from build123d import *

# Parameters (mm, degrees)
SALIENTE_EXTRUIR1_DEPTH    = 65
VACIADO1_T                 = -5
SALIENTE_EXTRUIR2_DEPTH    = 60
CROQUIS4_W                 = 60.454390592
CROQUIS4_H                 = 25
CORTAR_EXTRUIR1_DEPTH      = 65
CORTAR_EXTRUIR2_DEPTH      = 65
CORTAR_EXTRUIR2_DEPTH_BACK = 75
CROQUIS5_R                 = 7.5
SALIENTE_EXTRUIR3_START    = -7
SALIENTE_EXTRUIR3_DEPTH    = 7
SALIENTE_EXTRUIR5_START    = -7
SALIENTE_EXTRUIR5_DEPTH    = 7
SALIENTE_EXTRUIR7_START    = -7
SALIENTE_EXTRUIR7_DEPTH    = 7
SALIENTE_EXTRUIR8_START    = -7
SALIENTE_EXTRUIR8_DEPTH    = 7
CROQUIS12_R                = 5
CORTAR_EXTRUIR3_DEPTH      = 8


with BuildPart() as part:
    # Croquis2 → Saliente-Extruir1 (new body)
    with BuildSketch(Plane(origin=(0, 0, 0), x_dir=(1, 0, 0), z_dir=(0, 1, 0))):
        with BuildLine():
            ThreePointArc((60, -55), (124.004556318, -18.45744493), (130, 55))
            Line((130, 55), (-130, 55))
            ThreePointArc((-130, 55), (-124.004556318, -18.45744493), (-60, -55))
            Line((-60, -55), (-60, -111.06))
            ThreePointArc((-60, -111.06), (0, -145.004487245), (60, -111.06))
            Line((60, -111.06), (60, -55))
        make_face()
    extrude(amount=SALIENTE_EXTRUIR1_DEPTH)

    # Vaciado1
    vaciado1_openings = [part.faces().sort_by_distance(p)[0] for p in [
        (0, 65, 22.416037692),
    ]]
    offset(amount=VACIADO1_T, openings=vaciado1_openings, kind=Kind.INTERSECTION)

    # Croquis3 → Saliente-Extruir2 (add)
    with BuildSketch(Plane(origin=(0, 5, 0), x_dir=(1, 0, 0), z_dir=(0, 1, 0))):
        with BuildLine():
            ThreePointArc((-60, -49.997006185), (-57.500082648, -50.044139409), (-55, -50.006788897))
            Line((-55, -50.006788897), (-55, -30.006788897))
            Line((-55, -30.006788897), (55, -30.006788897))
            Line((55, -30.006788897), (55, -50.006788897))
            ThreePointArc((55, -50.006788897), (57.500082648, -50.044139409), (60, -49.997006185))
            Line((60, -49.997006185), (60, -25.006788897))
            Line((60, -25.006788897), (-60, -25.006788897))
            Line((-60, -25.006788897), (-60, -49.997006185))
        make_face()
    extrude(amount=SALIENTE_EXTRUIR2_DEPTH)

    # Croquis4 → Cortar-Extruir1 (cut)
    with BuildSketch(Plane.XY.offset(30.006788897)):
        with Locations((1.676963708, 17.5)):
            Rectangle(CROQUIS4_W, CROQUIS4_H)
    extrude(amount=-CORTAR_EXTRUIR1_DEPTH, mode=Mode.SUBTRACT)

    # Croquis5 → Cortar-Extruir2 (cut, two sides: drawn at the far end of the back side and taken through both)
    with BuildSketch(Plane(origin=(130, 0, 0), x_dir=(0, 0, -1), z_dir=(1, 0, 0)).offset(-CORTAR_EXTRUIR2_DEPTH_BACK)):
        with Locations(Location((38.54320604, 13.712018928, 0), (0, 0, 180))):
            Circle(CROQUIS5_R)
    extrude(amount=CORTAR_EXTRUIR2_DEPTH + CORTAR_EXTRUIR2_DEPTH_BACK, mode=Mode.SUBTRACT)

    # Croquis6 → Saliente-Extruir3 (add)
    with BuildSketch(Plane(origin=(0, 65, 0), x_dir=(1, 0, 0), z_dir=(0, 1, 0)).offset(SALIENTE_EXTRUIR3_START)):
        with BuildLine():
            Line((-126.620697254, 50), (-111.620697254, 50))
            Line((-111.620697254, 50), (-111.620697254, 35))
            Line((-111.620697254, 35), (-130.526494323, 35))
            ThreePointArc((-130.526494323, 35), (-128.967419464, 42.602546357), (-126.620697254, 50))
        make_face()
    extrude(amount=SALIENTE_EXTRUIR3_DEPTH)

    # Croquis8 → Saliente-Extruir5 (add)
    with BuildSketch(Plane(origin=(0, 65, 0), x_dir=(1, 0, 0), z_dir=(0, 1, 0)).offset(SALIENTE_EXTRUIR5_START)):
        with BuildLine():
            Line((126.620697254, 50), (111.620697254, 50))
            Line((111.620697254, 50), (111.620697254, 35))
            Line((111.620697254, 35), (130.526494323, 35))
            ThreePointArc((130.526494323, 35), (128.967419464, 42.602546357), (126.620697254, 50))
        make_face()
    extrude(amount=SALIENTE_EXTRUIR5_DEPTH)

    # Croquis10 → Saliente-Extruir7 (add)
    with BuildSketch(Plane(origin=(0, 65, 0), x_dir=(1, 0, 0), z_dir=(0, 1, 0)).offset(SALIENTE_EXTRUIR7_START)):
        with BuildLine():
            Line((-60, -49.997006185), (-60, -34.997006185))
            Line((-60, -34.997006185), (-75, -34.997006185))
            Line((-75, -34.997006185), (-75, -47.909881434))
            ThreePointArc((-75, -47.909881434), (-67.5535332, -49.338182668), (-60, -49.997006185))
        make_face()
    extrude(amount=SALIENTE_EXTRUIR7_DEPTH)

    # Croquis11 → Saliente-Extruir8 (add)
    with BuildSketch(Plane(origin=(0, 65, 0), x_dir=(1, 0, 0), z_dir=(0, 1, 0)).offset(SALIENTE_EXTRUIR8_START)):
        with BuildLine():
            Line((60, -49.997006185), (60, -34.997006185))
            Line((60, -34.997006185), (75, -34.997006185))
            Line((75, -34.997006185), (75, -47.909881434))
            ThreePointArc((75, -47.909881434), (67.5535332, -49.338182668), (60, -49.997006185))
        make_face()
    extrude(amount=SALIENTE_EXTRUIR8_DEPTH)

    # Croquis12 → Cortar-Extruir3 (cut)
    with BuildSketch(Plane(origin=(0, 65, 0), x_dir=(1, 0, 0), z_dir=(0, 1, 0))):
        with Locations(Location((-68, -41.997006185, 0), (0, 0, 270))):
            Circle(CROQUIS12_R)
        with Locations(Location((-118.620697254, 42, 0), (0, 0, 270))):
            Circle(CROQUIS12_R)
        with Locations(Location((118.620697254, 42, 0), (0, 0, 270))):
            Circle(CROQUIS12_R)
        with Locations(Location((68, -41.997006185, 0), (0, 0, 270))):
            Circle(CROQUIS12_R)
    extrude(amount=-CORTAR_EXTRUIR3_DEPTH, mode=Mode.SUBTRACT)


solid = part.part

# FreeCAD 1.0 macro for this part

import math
import FreeCAD as App
import Part
import Sketcher

V = App.Vector
Q = App.Units.Quantity


def faces_at(feature, points):
    """Names of the faces that lie closest to the given points."""
    faces = feature.Shape.Faces
    near = lambda p: min(range(len(faces)), key=lambda i: faces[i].distToShape(Part.Vertex(*p))[0])
    return sorted({f"Face{near(p) + 1}" for p in points})

doc = App.newDocument("Part")
params = doc.addObject("Spreadsheet::Sheet", "Params")
for row, (alias, value) in enumerate([
    ("sketch1_radius", "79 mm"),
    ("sketch1_radius2", "70 mm"),
    ("sketch1_width", "260 mm"),
    ("sketch1_height", "56.06 mm"),
    ("pad1_length", "65 mm"),
    ("thickness_wall", "5 mm"),
    ("sketch2_radius", "73.999999 mm"),
    ("sketch2_width", "110 mm"),
    ("sketch2_width2", "120 mm"),
    ("sketch2_height", "20 mm"),
    ("pad2_length", "60 mm"),
    ("sketch3_height", "25 mm"),
    ("pocket1_length", "65 mm"),
    ("sketch4_diameter", "15 mm"),
    ("pocket2_length", "65 mm"),
    ("pocket2_length2", "75 mm"),
    ("sketch5_radius", "74 mm"),
    ("sketch5_width", "15 mm"),
    ("pad3_length", "7 mm"),
    ("sketch6_radius", "74 mm"),
    ("sketch6_width", "15 mm"),
    ("pad4_length", "7 mm"),
    ("sketch7_radius", "74 mm"),
    ("sketch7_width", "15 mm"),
    ("pad5_length", "7 mm"),
    ("sketch8_radius", "74 mm"),
    ("sketch8_width", "15 mm"),
    ("pad6_length", "7 mm"),
    ("sketch9_diameter", "10 mm"),
    ("pocket3_length", "8 mm"),
], start=1):
    params.set(f"A{row}", alias)
    params.set(f"B{row}", "=" + value)
    params.setAlias(f"B{row}", alias)

body = doc.addObject("PartDesign::Body", "Body")

# Sketch on XZ plane
sketch1 = doc.addObject("Sketcher::SketchObject", "Sketch")
body.addObject(sketch1)
sketch1.AttachmentSupport = (doc.XZ_Plane, [""])
sketch1.MapMode = "FlatFace"
sketch1.addGeometry([
    Part.ArcOfCircle(Part.Circle(V(57, -24, 0), V(0, 0, 1), 79), math.radians(-23), math.radians(88)),  # 0
    Part.LineSegment(V(130, -55, 0), V(-130, -55, 0)),  # 1
    Part.ArcOfCircle(Part.Circle(V(-57, -24, 0), V(0, 0, 1), 79), math.radians(92), math.radians(203)),  # 2
    Part.LineSegment(V(-60, 55, 0), V(-60, 111, 0)),  # 3
    Part.ArcOfCircle(Part.Circle(V(0, 75, 0), V(0, 0, 1), 70), math.radians(31), math.radians(149)),  # 4
    Part.LineSegment(V(60, 111, 0), V(60, 55, 0)),  # 5
], False)
sketch1.addConstraint([
    Sketcher.Constraint("Coincident", 0, 1, 1, 1),
    Sketcher.Constraint("Coincident", 1, 2, 2, 2),
    Sketcher.Constraint("Coincident", 2, 1, 3, 1),
    Sketcher.Constraint("Coincident", 3, 2, 4, 2),
    Sketcher.Constraint("Coincident", 4, 1, 5, 1),
    Sketcher.Constraint("Coincident", 5, 2, 0, 2),
    Sketcher.Constraint("Horizontal", 1),
    Sketcher.Constraint("Vertical", 3),
    Sketcher.Constraint("Vertical", 5),
    Sketcher.Constraint("Equal", 0, 2),
    Sketcher.Constraint("Symmetric", 0, 3, 2, 3, -2),
    Sketcher.Constraint("Symmetric", 3, 2, 4, 1, -2),
    Sketcher.Constraint("Radius", 0, Q("79 mm")),
    Sketcher.Constraint("Radius", 4, Q("70 mm")),
    Sketcher.Constraint("DistanceX", 1, 2, 1, 1, Q("260 mm")),
    Sketcher.Constraint("DistanceY", 0, 1, -1, 1, Q("55 mm")),
    Sketcher.Constraint("DistanceX", 2, 1, -1, 1, Q("60 mm")),
    Sketcher.Constraint("DistanceY", -1, 1, 2, 1, Q("55 mm")),
    Sketcher.Constraint("DistanceY", 3, 1, 3, 2, Q("56.06 mm")),
])
sketch1.setExpression("Constraints[12]", "Params.sketch1_radius")
sketch1.setExpression("Constraints[13]", "Params.sketch1_radius2")
sketch1.setExpression("Constraints[14]", "Params.sketch1_width")
sketch1.setExpression("Constraints[18]", "Params.sketch1_height")
pad1 = doc.addObject("PartDesign::Pad", "Pad")
body.addObject(pad1)
pad1.Profile = sketch1
pad1.setExpression("Length", "Params.pad1_length")
pad1.Reversed = True
doc.recompute()

thickness = doc.addObject("PartDesign::Thickness", "Thickness")
body.addObject(thickness)
thickness.Base = (pad1, faces_at(pad1, [(0, 65, 45.002)]))
thickness.setExpression("Value", "Params.thickness_wall")
thickness.Reversed = True
thickness.Join = "Intersection"

# Sketch on XZ plane
sketch2 = doc.addObject("Sketcher::SketchObject", "Sketch001")
body.addObject(sketch2)
sketch2.AttachmentSupport = (doc.XZ_Plane, [""])
sketch2.MapMode = "FlatFace"
sketch2.AttachmentOffset = App.Placement(V(0, 0, -5), App.Rotation())
sketch2.addGeometry([
    Part.ArcOfCircle(Part.Circle(V(-57, -24, 0), V(0, 0, 1), 74), math.radians(88.18), math.radians(92.05)),  # 0
    Part.LineSegment(V(-55, 50, 0), V(-55, 30, 0)),  # 1
    Part.LineSegment(V(-55, 30, 0), V(55, 30, 0)),  # 2
    Part.LineSegment(V(55, 30, 0), V(55, 50, 0)),  # 3
    Part.ArcOfCircle(Part.Circle(V(57, -24, 0), V(0, 0, 1), 74), math.radians(87.95), math.radians(91.82)),  # 4
    Part.LineSegment(V(60, 50, 0), V(60, 25, 0)),  # 5
    Part.LineSegment(V(60, 25, 0), V(-60, 25, 0)),  # 6
    Part.LineSegment(V(-60, 25, 0), V(-60, 50, 0)),  # 7
], False)
sketch2.addConstraint([
    Sketcher.Constraint("Coincident", 0, 1, 1, 1),
    Sketcher.Constraint("Coincident", 1, 2, 2, 1),
    Sketcher.Constraint("Coincident", 2, 2, 3, 1),
    Sketcher.Constraint("Coincident", 3, 2, 4, 2),
    Sketcher.Constraint("Coincident", 4, 1, 5, 1),
    Sketcher.Constraint("Coincident", 5, 2, 6, 1),
    Sketcher.Constraint("Coincident", 6, 2, 7, 1),
    Sketcher.Constraint("Coincident", 7, 2, 0, 2),
    Sketcher.Constraint("Vertical", 1),
    Sketcher.Constraint("Horizontal", 2),
    Sketcher.Constraint("Vertical", 3),
    Sketcher.Constraint("Vertical", 5),
    Sketcher.Constraint("Horizontal", 6),
    Sketcher.Constraint("Vertical", 7),
    Sketcher.Constraint("Equal", 0, 4),
    Sketcher.Constraint("Symmetric", 0, 3, 4, 3, -2),
    Sketcher.Constraint("Horizontal", 0, 1, 3, 2),
    Sketcher.Constraint("Horizontal", 4, 1, 7, 2),
    Sketcher.Constraint("Radius", 0, Q("73.999999 mm")),
    Sketcher.Constraint("DistanceX", 2, 1, 2, 2, Q("110 mm")),
    Sketcher.Constraint("DistanceX", 6, 2, 6, 1, Q("120 mm")),
    Sketcher.Constraint("DistanceY", 1, 2, 1, 1, Q("20 mm")),
    Sketcher.Constraint("DistanceY", 5, 2, 2, 2, Q("5 mm")),
    Sketcher.Constraint("DistanceX", 0, 3, -1, 1, Q("57.355299 mm")),
    Sketcher.Constraint("DistanceY", -1, 1, 0, 1, Q("50.006789 mm")),
])
sketch2.setExpression("Constraints[18]", "Params.sketch2_radius")
sketch2.setExpression("Constraints[19]", "Params.sketch2_width")
sketch2.setExpression("Constraints[20]", "Params.sketch2_width2")
sketch2.setExpression("Constraints[21]", "Params.sketch2_height")
pad2 = doc.addObject("PartDesign::Pad", "Pad001")
body.addObject(pad2)
pad2.Profile = sketch2
pad2.setExpression("Length", "Params.pad2_length")
pad2.Reversed = True

# Sketch on XY plane
sketch3 = doc.addObject("Sketcher::SketchObject", "Sketch002")
body.addObject(sketch3)
sketch3.AttachmentSupport = (doc.XY_Plane, [""])
sketch3.MapMode = "FlatFace"
sketch3.AttachmentOffset = App.Placement(V(0, 0, 30.006789), App.Rotation())
sketch3.addGeometry([
    Part.LineSegment(V(-29, 30, 0), V(-29, 5, 0)),
    Part.LineSegment(V(-29, 5, 0), V(32, 5, 0)),
    Part.LineSegment(V(32, 5, 0), V(32, 30, 0)),
    Part.LineSegment(V(32, 30, 0), V(-29, 30, 0)),
], False)
sketch3.addConstraint([
    Sketcher.Constraint("Coincident", 0, 2, 1, 1),
    Sketcher.Constraint("Coincident", 1, 2, 2, 1),
    Sketcher.Constraint("Coincident", 2, 2, 3, 1),
    Sketcher.Constraint("Coincident", 3, 2, 0, 1),
    Sketcher.Constraint("Vertical", 0),
    Sketcher.Constraint("Horizontal", 1),
    Sketcher.Constraint("Vertical", 2),
    Sketcher.Constraint("Horizontal", 3),
    Sketcher.Constraint("DistanceY", 0, 2, 0, 1, Q("25 mm")),
    Sketcher.Constraint("DistanceY", -1, 1, 0, 2, Q("5 mm")),
    Sketcher.Constraint("DistanceX", 1, 1, 1, 2, Q("60.454391 mm")),
    Sketcher.Constraint("DistanceX", 0, 2, -1, 1, Q("28.550232 mm")),
])
sketch3.setExpression("Constraints[8]", "Params.sketch3_height")
pocket1 = doc.addObject("PartDesign::Pocket", "Pocket")
body.addObject(pocket1)
pocket1.Profile = sketch3
pocket1.setExpression("Length", "Params.pocket1_length")

# Sketch on YZ plane
sketch4 = doc.addObject("Sketcher::SketchObject", "Sketch003")
body.addObject(sketch4)
sketch4.AttachmentSupport = (doc.YZ_Plane, [""])
sketch4.MapMode = "FlatFace"
sketch4.AttachmentOffset = App.Placement(V(0, 0, 130), App.Rotation())
sketch4.addGeometry(Part.Circle(V(14, -39, 0), V(0, 0, 1), 8), False)
sketch4.addConstraint([
    Sketcher.Constraint("Diameter", 0, Q("15 mm")),
    Sketcher.Constraint("DistanceX", -1, 1, 0, 3, Q("13.712019 mm")),
    Sketcher.Constraint("DistanceY", 0, 3, -1, 1, Q("38.543206 mm")),
])
sketch4.setExpression("Constraints[0]", "Params.sketch4_diameter")
pocket2 = doc.addObject("PartDesign::Pocket", "Pocket001")
body.addObject(pocket2)
pocket2.Profile = sketch4
pocket2.Type = "TwoLengths"
pocket2.setExpression("Length", "Params.pocket2_length")
pocket2.setExpression("Length2", "Params.pocket2_length2")
pocket2.Reversed = True

# Sketch on XZ plane
sketch5 = doc.addObject("Sketcher::SketchObject", "Sketch004")
body.addObject(sketch5)
sketch5.AttachmentSupport = (doc.XZ_Plane, [""])
sketch5.MapMode = "FlatFace"
sketch5.AttachmentOffset = App.Placement(V(0, 0, -58), App.Rotation())
sketch5.addGeometry([
    Part.LineSegment(V(-112, -50, 0), V(-127, -50, 0)),
    Part.ArcOfCircle(Part.Circle(V(-57, -24, 0), V(0, 0, 1), 74), math.radians(-171.42), math.radians(-159.39)),
    Part.LineSegment(V(-131, -35, 0), V(-112, -35, 0)),
    Part.LineSegment(V(-112, -35, 0), V(-112, -50, 0)),
], False)
sketch5.addConstraint([
    Sketcher.Constraint("Coincident", 0, 2, 1, 2),
    Sketcher.Constraint("Coincident", 1, 1, 2, 1),
    Sketcher.Constraint("Coincident", 2, 2, 3, 1),
    Sketcher.Constraint("Coincident", 3, 2, 0, 1),
    Sketcher.Constraint("Horizontal", 0),
    Sketcher.Constraint("Horizontal", 2),
    Sketcher.Constraint("Vertical", 3),
    Sketcher.Constraint("Equal", 0, 3),
    Sketcher.Constraint("Radius", 1, Q("74 mm")),
    Sketcher.Constraint("DistanceX", 0, 2, 0, 1, Q("15 mm")),
    Sketcher.Constraint("DistanceY", 0, 2, -1, 1, Q("50 mm")),
    Sketcher.Constraint("DistanceX", 1, 3, -1, 1, Q("57.355299 mm")),
    Sketcher.Constraint("DistanceX", 0, 2, 1, 3, Q("69.265398 mm")),
])
sketch5.setExpression("Constraints[8]", "Params.sketch5_radius")
sketch5.setExpression("Constraints[9]", "Params.sketch5_width")
pad3 = doc.addObject("PartDesign::Pad", "Pad002")
body.addObject(pad3)
pad3.Profile = sketch5
pad3.setExpression("Length", "Params.pad3_length")
pad3.Reversed = True

# Sketch on XZ plane
sketch6 = doc.addObject("Sketcher::SketchObject", "Sketch005")
body.addObject(sketch6)
sketch6.AttachmentSupport = (doc.XZ_Plane, [""])
sketch6.MapMode = "FlatFace"
sketch6.AttachmentOffset = App.Placement(V(0, 0, -58), App.Rotation())
sketch6.addGeometry([
    Part.LineSegment(V(127, -50, 0), V(112, -50, 0)),
    Part.LineSegment(V(112, -50, 0), V(112, -35, 0)),
    Part.LineSegment(V(112, -35, 0), V(131, -35, 0)),
    Part.ArcOfCircle(Part.Circle(V(57, -24, 0), V(0, 0, 1), 74), math.radians(-20.61), math.radians(-8.58)),
], False)
sketch6.addConstraint([
    Sketcher.Constraint("Coincident", 0, 2, 1, 1),
    Sketcher.Constraint("Coincident", 1, 2, 2, 1),
    Sketcher.Constraint("Coincident", 2, 2, 3, 2),
    Sketcher.Constraint("Coincident", 3, 1, 0, 1),
    Sketcher.Constraint("Horizontal", 0),
    Sketcher.Constraint("Vertical", 1),
    Sketcher.Constraint("Horizontal", 2),
    Sketcher.Constraint("Equal", 0, 1),
    Sketcher.Constraint("Radius", 3, Q("74 mm")),
    Sketcher.Constraint("DistanceX", 0, 2, 0, 1, Q("15 mm")),
    Sketcher.Constraint("DistanceY", 0, 2, -1, 1, Q("50 mm")),
    Sketcher.Constraint("DistanceX", -1, 1, 3, 3, Q("57.355299 mm")),
    Sketcher.Constraint("DistanceX", 3, 3, 0, 2, Q("54.265398 mm")),
])
sketch6.setExpression("Constraints[8]", "Params.sketch6_radius")
sketch6.setExpression("Constraints[9]", "Params.sketch6_width")
pad4 = doc.addObject("PartDesign::Pad", "Pad003")
body.addObject(pad4)
pad4.Profile = sketch6
pad4.setExpression("Length", "Params.pad4_length")
pad4.Reversed = True

# Sketch on XZ plane
sketch7 = doc.addObject("Sketcher::SketchObject", "Sketch006")
body.addObject(sketch7)
sketch7.AttachmentSupport = (doc.XZ_Plane, [""])
sketch7.MapMode = "FlatFace"
sketch7.AttachmentOffset = App.Placement(V(0, 0, -58), App.Rotation())
sketch7.addGeometry([
    Part.LineSegment(V(-60, 50, 0), V(-60, 35, 0)),
    Part.LineSegment(V(-60, 35, 0), V(-75, 35, 0)),
    Part.LineSegment(V(-75, 35, 0), V(-75, 48, 0)),
    Part.ArcOfCircle(Part.Circle(V(-57, -24, 0), V(0, 0, 1), 74), math.radians(92.05), math.radians(103.79)),
], False)
sketch7.addConstraint([
    Sketcher.Constraint("Coincident", 0, 2, 1, 1),
    Sketcher.Constraint("Coincident", 1, 2, 2, 1),
    Sketcher.Constraint("Coincident", 2, 2, 3, 2),
    Sketcher.Constraint("Coincident", 3, 1, 0, 1),
    Sketcher.Constraint("Vertical", 0),
    Sketcher.Constraint("Horizontal", 1),
    Sketcher.Constraint("Vertical", 2),
    Sketcher.Constraint("Equal", 1, 0),
    Sketcher.Constraint("Radius", 3, Q("74 mm")),
    Sketcher.Constraint("DistanceX", 1, 2, 1, 1, Q("15 mm")),
    Sketcher.Constraint("DistanceX", 0, 2, -1, 1, Q("60 mm")),
    Sketcher.Constraint("DistanceX", 3, 3, -1, 1, Q("57.355299 mm")),
    Sketcher.Constraint("DistanceY", 3, 3, -1, 1, Q("23.955719 mm")),
])
sketch7.setExpression("Constraints[8]", "Params.sketch7_radius")
sketch7.setExpression("Constraints[9]", "Params.sketch7_width")
pad5 = doc.addObject("PartDesign::Pad", "Pad004")
body.addObject(pad5)
pad5.Profile = sketch7
pad5.setExpression("Length", "Params.pad5_length")
pad5.Reversed = True

# Sketch on XZ plane
sketch8 = doc.addObject("Sketcher::SketchObject", "Sketch007")
body.addObject(sketch8)
sketch8.AttachmentSupport = (doc.XZ_Plane, [""])
sketch8.MapMode = "FlatFace"
sketch8.AttachmentOffset = App.Placement(V(0, 0, -58), App.Rotation())
sketch8.addGeometry([
    Part.LineSegment(V(60, 35, 0), V(60, 50, 0)),
    Part.ArcOfCircle(Part.Circle(V(57, -24, 0), V(0, 0, 1), 74), math.radians(76.21), math.radians(87.95)),
    Part.LineSegment(V(75, 48, 0), V(75, 35, 0)),
    Part.LineSegment(V(75, 35, 0), V(60, 35, 0)),
], False)
sketch8.addConstraint([
    Sketcher.Constraint("Coincident", 0, 2, 1, 2),
    Sketcher.Constraint("Coincident", 1, 1, 2, 1),
    Sketcher.Constraint("Coincident", 2, 2, 3, 1),
    Sketcher.Constraint("Coincident", 3, 2, 0, 1),
    Sketcher.Constraint("Vertical", 0),
    Sketcher.Constraint("Vertical", 2),
    Sketcher.Constraint("Horizontal", 3),
    Sketcher.Constraint("Equal", 3, 0),
    Sketcher.Constraint("Radius", 1, Q("74 mm")),
    Sketcher.Constraint("DistanceX", 3, 2, 3, 1, Q("15 mm")),
    Sketcher.Constraint("DistanceX", -1, 1, 0, 2, Q("60 mm")),
    Sketcher.Constraint("DistanceX", -1, 1, 1, 3, Q("57.355299 mm")),
    Sketcher.Constraint("DistanceY", 1, 3, -1, 1, Q("23.955719 mm")),
])
sketch8.setExpression("Constraints[8]", "Params.sketch8_radius")
sketch8.setExpression("Constraints[9]", "Params.sketch8_width")
pad6 = doc.addObject("PartDesign::Pad", "Pad005")
body.addObject(pad6)
pad6.Profile = sketch8
pad6.setExpression("Length", "Params.pad6_length")
pad6.Reversed = True

# Sketch on XZ plane
sketch9 = doc.addObject("Sketcher::SketchObject", "Sketch008")
body.addObject(sketch9)
sketch9.AttachmentSupport = (doc.XZ_Plane, [""])
sketch9.MapMode = "FlatFace"
sketch9.AttachmentOffset = App.Placement(V(0, 0, -65), App.Rotation())
sketch9.addGeometry([
    Part.Circle(V(-68, 42, 0), V(0, 0, 1), 5),
    Part.Circle(V(-119, -42, 0), V(0, 0, 1), 5),
    Part.Circle(V(119, -42, 0), V(0, 0, 1), 5),
    Part.Circle(V(68, 42, 0), V(0, 0, 1), 5),
], False)
sketch9.addConstraint([
    Sketcher.Constraint("Equal", 0, 1),
    Sketcher.Constraint("Equal", 1, 2),
    Sketcher.Constraint("Equal", 2, 3),
    Sketcher.Constraint("Symmetric", 1, 3, 2, 3, -2),
    Sketcher.Constraint("Symmetric", 0, 3, 3, 3, -2),
    Sketcher.Constraint("Diameter", 0, Q("10 mm")),
    Sketcher.Constraint("DistanceX", 0, 3, -1, 1, Q("68 mm")),
    Sketcher.Constraint("DistanceY", 1, 3, -1, 1, Q("42 mm")),
    Sketcher.Constraint("DistanceY", -1, 1, 0, 3, Q("41.997006 mm")),
    Sketcher.Constraint("DistanceX", 1, 3, -1, 1, Q("118.620697 mm")),
])
sketch9.setExpression("Constraints[5]", "Params.sketch9_diameter")
pocket3 = doc.addObject("PartDesign::Pocket", "Pocket002")
body.addObject(pocket3)
pocket3.Profile = sketch9
pocket3.setExpression("Length", "Params.pocket3_length")
pocket3.Reversed = True

doc.recompute()
